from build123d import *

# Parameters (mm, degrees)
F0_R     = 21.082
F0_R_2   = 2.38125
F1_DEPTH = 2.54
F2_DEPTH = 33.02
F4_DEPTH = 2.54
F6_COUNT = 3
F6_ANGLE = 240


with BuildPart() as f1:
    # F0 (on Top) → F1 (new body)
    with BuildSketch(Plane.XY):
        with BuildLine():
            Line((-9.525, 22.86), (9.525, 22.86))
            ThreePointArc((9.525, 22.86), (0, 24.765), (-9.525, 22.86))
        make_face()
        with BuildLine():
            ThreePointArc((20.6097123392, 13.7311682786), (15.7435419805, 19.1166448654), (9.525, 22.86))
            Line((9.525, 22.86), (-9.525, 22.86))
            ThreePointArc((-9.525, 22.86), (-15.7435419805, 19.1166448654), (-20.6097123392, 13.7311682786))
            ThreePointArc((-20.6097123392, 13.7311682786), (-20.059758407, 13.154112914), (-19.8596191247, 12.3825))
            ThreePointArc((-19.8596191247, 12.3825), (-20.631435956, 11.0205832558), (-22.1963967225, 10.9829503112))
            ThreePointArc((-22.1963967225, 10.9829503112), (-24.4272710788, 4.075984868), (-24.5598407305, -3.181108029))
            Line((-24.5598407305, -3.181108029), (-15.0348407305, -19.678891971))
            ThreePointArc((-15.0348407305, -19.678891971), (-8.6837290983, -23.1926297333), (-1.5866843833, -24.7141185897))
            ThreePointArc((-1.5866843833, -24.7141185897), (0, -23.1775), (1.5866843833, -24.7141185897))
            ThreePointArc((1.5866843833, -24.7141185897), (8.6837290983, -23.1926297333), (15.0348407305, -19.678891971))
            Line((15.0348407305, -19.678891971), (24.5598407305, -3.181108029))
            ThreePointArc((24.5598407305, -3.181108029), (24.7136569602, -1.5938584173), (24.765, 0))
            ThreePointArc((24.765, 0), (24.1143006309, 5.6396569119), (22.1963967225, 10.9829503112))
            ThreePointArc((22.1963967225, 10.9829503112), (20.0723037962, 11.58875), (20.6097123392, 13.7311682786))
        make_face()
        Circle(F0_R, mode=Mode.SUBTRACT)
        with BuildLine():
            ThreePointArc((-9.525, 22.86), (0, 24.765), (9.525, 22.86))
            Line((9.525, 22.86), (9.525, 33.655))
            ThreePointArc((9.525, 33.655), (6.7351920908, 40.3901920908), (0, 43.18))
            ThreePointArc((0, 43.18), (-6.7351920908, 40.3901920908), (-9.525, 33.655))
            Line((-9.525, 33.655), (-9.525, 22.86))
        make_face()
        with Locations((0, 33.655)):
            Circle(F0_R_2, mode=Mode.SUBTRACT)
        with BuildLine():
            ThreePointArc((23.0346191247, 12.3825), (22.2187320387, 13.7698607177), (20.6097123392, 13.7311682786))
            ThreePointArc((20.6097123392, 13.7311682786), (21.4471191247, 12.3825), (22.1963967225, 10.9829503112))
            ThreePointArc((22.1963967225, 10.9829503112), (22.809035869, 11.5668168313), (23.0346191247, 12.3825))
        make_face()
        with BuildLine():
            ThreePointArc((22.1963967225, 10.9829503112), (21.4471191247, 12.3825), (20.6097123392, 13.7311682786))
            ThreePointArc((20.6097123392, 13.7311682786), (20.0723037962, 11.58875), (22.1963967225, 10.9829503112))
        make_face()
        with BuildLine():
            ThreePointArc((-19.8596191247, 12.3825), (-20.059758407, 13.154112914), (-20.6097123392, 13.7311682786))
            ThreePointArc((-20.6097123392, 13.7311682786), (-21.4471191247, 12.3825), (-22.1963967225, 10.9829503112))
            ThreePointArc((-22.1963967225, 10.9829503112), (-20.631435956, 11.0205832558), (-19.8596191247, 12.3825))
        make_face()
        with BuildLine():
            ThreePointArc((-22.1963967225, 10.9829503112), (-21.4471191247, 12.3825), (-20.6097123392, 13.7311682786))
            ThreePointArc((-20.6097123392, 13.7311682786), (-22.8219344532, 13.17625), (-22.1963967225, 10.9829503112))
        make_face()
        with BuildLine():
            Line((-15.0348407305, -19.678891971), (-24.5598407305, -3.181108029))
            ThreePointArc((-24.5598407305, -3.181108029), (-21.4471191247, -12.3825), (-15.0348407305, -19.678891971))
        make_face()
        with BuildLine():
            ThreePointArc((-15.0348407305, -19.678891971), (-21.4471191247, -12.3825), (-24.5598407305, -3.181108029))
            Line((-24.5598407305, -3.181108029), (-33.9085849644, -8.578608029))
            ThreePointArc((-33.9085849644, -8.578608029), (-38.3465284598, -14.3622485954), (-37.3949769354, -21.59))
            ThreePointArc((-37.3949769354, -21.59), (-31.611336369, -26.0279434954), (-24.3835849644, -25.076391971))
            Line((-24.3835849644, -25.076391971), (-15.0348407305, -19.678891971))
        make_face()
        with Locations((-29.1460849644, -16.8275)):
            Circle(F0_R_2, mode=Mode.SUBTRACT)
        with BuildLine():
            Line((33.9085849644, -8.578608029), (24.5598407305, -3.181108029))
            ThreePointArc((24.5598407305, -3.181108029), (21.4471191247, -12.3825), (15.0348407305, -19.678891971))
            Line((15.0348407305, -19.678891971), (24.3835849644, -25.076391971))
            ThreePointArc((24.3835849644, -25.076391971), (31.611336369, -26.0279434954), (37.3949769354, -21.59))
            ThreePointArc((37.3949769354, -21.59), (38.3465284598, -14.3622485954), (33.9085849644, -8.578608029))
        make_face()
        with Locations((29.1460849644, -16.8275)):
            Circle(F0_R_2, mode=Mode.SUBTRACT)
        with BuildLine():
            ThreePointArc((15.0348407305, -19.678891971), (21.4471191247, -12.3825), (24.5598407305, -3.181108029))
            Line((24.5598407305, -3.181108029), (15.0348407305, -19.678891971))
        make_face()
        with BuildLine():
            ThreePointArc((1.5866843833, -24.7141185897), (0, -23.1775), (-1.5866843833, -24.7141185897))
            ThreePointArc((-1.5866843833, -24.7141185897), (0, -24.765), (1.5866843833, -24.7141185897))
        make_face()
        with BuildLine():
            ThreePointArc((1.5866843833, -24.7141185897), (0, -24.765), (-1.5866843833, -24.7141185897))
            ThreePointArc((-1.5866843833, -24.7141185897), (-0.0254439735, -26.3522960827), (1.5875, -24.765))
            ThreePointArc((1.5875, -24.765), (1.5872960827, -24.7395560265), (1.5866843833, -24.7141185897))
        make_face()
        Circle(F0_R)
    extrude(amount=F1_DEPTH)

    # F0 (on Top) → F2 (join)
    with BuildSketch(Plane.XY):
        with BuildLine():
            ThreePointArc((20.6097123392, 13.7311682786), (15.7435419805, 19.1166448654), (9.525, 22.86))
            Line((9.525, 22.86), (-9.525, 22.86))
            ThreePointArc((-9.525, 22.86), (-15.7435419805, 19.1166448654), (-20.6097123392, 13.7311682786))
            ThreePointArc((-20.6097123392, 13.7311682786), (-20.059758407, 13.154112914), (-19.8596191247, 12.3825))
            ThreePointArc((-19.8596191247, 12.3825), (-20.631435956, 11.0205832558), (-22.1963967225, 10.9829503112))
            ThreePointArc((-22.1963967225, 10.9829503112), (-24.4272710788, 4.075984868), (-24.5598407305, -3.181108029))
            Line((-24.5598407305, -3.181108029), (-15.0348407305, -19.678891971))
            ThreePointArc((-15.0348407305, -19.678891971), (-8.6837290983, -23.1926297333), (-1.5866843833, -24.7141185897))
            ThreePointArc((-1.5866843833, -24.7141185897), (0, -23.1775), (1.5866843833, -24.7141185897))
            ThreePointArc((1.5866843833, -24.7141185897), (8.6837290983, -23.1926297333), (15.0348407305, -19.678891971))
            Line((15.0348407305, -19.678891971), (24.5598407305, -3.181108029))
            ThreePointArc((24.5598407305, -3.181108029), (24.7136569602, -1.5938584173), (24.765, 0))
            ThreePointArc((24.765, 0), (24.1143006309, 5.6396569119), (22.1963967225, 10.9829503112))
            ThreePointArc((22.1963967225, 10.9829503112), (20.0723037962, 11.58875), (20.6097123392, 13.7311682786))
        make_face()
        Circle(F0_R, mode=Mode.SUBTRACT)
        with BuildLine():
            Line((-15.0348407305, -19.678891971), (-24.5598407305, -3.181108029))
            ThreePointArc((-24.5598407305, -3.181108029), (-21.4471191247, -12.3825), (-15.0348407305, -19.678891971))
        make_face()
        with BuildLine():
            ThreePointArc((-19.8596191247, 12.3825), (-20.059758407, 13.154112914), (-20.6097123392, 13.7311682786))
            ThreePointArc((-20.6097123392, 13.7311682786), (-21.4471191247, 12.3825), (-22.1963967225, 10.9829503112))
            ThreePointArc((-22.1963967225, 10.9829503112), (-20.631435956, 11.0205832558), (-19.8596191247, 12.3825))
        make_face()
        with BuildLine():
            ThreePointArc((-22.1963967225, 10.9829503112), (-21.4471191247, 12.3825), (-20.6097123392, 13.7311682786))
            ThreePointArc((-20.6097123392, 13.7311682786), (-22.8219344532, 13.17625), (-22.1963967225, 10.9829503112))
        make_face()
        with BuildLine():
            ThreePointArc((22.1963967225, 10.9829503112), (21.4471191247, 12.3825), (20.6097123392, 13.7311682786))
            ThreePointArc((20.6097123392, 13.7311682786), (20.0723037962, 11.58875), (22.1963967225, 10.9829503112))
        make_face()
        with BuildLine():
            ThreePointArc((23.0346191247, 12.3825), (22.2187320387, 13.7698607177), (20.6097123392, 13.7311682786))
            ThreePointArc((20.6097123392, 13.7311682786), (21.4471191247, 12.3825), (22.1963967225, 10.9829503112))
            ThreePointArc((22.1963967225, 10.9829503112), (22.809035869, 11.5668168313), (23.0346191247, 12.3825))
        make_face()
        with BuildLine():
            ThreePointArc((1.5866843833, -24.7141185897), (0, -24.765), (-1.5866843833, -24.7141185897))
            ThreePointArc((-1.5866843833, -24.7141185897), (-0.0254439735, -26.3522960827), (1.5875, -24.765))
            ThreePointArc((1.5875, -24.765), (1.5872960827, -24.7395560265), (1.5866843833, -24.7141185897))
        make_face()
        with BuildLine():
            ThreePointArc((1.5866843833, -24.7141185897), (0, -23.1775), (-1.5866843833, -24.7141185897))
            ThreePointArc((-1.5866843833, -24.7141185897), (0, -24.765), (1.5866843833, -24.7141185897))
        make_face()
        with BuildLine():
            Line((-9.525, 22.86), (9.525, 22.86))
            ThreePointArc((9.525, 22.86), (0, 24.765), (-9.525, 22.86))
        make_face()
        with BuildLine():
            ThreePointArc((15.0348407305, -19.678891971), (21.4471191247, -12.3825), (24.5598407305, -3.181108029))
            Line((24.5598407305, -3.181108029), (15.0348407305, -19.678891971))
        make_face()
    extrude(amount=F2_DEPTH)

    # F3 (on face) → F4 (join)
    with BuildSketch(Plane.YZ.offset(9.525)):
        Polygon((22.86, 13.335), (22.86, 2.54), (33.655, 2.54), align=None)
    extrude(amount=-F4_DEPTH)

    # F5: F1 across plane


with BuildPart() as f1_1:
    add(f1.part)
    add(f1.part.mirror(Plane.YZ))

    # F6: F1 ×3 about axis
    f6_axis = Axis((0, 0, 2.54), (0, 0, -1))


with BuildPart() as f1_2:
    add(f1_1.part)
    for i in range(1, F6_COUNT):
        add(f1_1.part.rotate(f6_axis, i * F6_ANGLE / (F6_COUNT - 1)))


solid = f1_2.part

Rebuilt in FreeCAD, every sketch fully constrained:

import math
import FreeCAD as App
import Part
import Sketcher

V = App.Vector
Q = App.Units.Quantity


def add_polygon(sketch, points):
    """Adds a closed chain of lines whose ends are joined by coincident constraints."""
    first, n = sketch.GeometryCount, len(points)
    for a, b in zip(points, points[1:] + points[:1]):
        sketch.addGeometry(Part.LineSegment(App.Vector(*a, 0), App.Vector(*b, 0)), False)
    for i in range(n):
        sketch.addConstraint(Sketcher.Constraint("Coincident", first + i, 2, first + (i + 1) % n, 1))

doc = App.newDocument("Part")
body = doc.addObject("PartDesign::Body", "Body")

# Sketch on XY plane
sketch1 = body.newObject("Sketcher::SketchObject", "Sketch")
sketch1.AttachmentSupport = (doc.getObject("XY_Plane"), [""])
sketch1.MapMode = "FlatFace"
sketch1.addGeometry([
    Part.ArcOfCircle(Part.Circle(V(0, 0, 0), V(0, 0, 1), 24.765), math.radians(33.673436), math.radians(67.380135)),  # 0
    Part.LineSegment(V(9.525, 22.86, 0), V(9.525, 33.655, 0)),  # 1
    Part.ArcOfCircle(Part.Circle(V(0, 33.655, 0), V(0, 0, 1), 9.525), math.radians(0), math.radians(90)),  # 2
    Part.ArcOfCircle(Part.Circle(V(0, 33.655, 0), V(0, 0, 1), 9.525), math.radians(90), math.radians(180)),  # 3
    Part.LineSegment(V(-9.525, 33.655, 0), V(-9.525, 22.86, 0)),  # 4
    Part.ArcOfCircle(Part.Circle(V(0, 0, 0), V(0, 0, 1), 24.765), math.radians(112.619865), math.radians(146.326564)),  # 5
    Part.ArcOfCircle(Part.Circle(V(-21.447119, 12.3825, 0), V(0, 0, 1), 1.5875), math.radians(58.163282), math.radians(241.836718)),  # 6
    Part.ArcOfCircle(Part.Circle(V(0, 0, 0), V(0, 0, 1), 24.765), math.radians(153.673436), math.radians(187.380135)),  # 7
    Part.LineSegment(V(-24.559841, -3.181108, 0), V(-33.908585, -8.578608, 0)),  # 8
    Part.ArcOfCircle(Part.Circle(V(-29.146085, -16.8275, 0), V(0, 0, 1), 9.525), math.radians(120), math.radians(210)),  # 9
    Part.ArcOfCircle(Part.Circle(V(-29.146085, -16.8275, 0), V(0, 0, 1), 9.525), math.radians(-150), math.radians(-60)),  # 10
    Part.LineSegment(V(-24.383585, -25.076392, 0), V(-15.034841, -19.678892, 0)),  # 11
    Part.ArcOfCircle(Part.Circle(V(0, 0, 0), V(0, 0, 1), 24.765), math.radians(-127.380135), math.radians(-93.673436)),  # 12
    Part.ArcOfCircle(Part.Circle(V(0, -24.765, 0), V(0, 0, 1), 1.5875), math.radians(178.163282), math.radians(360)),  # 13
    Part.ArcOfCircle(Part.Circle(V(0, -24.765, 0), V(0, 0, 1), 1.5875), math.radians(0), math.radians(1.836718)),  # 14
    Part.ArcOfCircle(Part.Circle(V(0, 0, 0), V(0, 0, 1), 24.765), math.radians(-86.326564), math.radians(-52.619865)),  # 15
    Part.LineSegment(V(15.034841, -19.678892, 0), V(24.383585, -25.076392, 0)),  # 16
    Part.ArcOfCircle(Part.Circle(V(29.146085, -16.8275, 0), V(0, 0, 1), 9.525), math.radians(-120), math.radians(-30)),  # 17
    Part.ArcOfCircle(Part.Circle(V(29.146085, -16.8275, 0), V(0, 0, 1), 9.525), math.radians(-30), math.radians(60)),  # 18
    Part.LineSegment(V(33.908585, -8.578608, 0), V(24.559841, -3.181108, 0)),  # 19
    Part.ArcOfCircle(Part.Circle(V(0, 0, 0), V(0, 0, 1), 24.765), math.radians(-7.380135), math.radians(0)),  # 20
    Part.ArcOfCircle(Part.Circle(V(0, 0, 0), V(0, 0, 1), 24.765), math.radians(0), math.radians(26.326564)),  # 21
    Part.ArcOfCircle(Part.Circle(V(21.447119, 12.3825, 0), V(0, 0, 1), 1.5875), math.radians(-61.836718), math.radians(0)),  # 22
    Part.ArcOfCircle(Part.Circle(V(21.447119, 12.3825, 0), V(0, 0, 1), 1.5875), math.radians(0), math.radians(121.836718)),  # 23
    Part.Circle(V(-29.146085, -16.8275, 0), V(0, 0, 1), 2.38125),  # 24
    Part.Circle(V(0, 33.655, 0), V(0, 0, 1), 2.38125),  # 25
    Part.Circle(V(29.146085, -16.8275, 0), V(0, 0, 1), 2.38125),  # 26
], False)
sketch1.addConstraint([
    Sketcher.Constraint("Coincident", 0, 2, 1, 1),
    Sketcher.Constraint("Tangent", 1, 2, 2, 1),
    Sketcher.Constraint("Tangent", 2, 2, 3, 1),
    Sketcher.Constraint("Tangent", 3, 2, 4, 1),
    Sketcher.Constraint("Coincident", 4, 2, 5, 1),
    Sketcher.Constraint("Coincident", 5, 2, 6, 1),
    Sketcher.Constraint("Coincident", 6, 2, 7, 1),
    Sketcher.Constraint("Coincident", 7, 2, 8, 1),
    Sketcher.Constraint("Tangent", 8, 2, 9, 1),
    Sketcher.Constraint("Tangent", 9, 2, 10, 1),
    Sketcher.Constraint("Tangent", 10, 2, 11, 1),
    Sketcher.Constraint("Coincident", 11, 2, 12, 1),
    Sketcher.Constraint("Coincident", 12, 2, 13, 1),
    Sketcher.Constraint("Tangent", 13, 2, 14, 1),
    Sketcher.Constraint("Coincident", 14, 2, 15, 1),
    Sketcher.Constraint("Coincident", 15, 2, 16, 1),
    Sketcher.Constraint("Tangent", 16, 2, 17, 1),
    Sketcher.Constraint("Tangent", 17, 2, 18, 1),
    Sketcher.Constraint("Tangent", 18, 2, 19, 1),
    Sketcher.Constraint("Coincident", 19, 2, 20, 1),
    Sketcher.Constraint("Tangent", 20, 2, 21, 1),
    Sketcher.Constraint("Coincident", 21, 2, 22, 1),
    Sketcher.Constraint("Tangent", 22, 2, 23, 1),
    Sketcher.Constraint("Coincident", 23, 2, 0, 1),
    Sketcher.Constraint("Vertical", 1),
    Sketcher.Constraint("Vertical", 4),
    Sketcher.Constraint("Coincident", 0, 3, -1, 1),
    Sketcher.Constraint("Coincident", 5, 3, -1, 1),
    Sketcher.Constraint("Coincident", 7, 3, -1, 1),
    Sketcher.Constraint("Coincident", 12, 3, -1, 1),
    Sketcher.Constraint("Coincident", 15, 3, -1, 1),
    Sketcher.Constraint("Coincident", 20, 3, -1, 1),
    Sketcher.Constraint("Coincident", 24, 3, 9, 3),
    Sketcher.Constraint("Coincident", 25, 3, 2, 3),
    Sketcher.Constraint("Coincident", 26, 3, 17, 3),
    Sketcher.Constraint("Equal", 2, 3),
    Sketcher.Constraint("Equal", 0, 5),
    Sketcher.Constraint("Equal", 5, 7),
    Sketcher.Constraint("Equal", 3, 9),
    Sketcher.Constraint("Equal", 9, 10),
    Sketcher.Constraint("Equal", 7, 12),
    Sketcher.Constraint("Equal", 6, 13),
    Sketcher.Constraint("Equal", 13, 14),
    Sketcher.Constraint("Equal", 12, 15),
    Sketcher.Constraint("Equal", 10, 17),
    Sketcher.Constraint("Equal", 17, 18),
    Sketcher.Constraint("Equal", 15, 20),
    Sketcher.Constraint("Equal", 20, 21),
    Sketcher.Constraint("Equal", 14, 22),
    Sketcher.Constraint("Equal", 22, 23),
    Sketcher.Constraint("Equal", 24, 25),
    Sketcher.Constraint("Equal", 25, 26),
    Sketcher.Constraint("Symmetric", 9, 3, 17, 3, -2),
    Sketcher.Constraint("Symmetric", 6, 3, 22, 3, -2),
    Sketcher.Constraint("PointOnObject", 2, 3, -2),
    Sketcher.Constraint("PointOnObject", 13, 3, -2),
    Sketcher.Constraint("PointOnObject", 2, 2, -2),
    Sketcher.Constraint("PointOnObject", 20, 2, -1),
    Sketcher.Constraint("Parallel", 8, 11),
    Sketcher.Constraint("Parallel", 16, 19),
    Sketcher.Constraint("Horizontal", 14, 3, 13, 2),
    Sketcher.Constraint("Horizontal", 11, 2, 15, 2),
    Sketcher.Constraint("Horizontal", 9, 2, 17, 2),
    Sketcher.Constraint("Horizontal", 23, 3, 22, 2),
    Sketcher.Constraint("Equal", 8, 11),
    Sketcher.Constraint("Diameter", 24, Q("0.1875 in")),
    Sketcher.Constraint("Angle", 8, Q("-150 deg")),
    Sketcher.Constraint("Radius", 0, Q("0.975 in")),
    Sketcher.Constraint("Radius", 2, Q("0.375 in")),
    Sketcher.Constraint("Radius", 6, Q("0.0625 in")),
    Sketcher.Constraint("DistanceY", -1, 1, 2, 2, Q("1.7 in")),
    Sketcher.Constraint("DistanceY", 9, 2, -1, 1, Q("0.85 in")),
    Sketcher.Constraint("DistanceY", 9, 3, 6, 3, Q("1.15 in")),
    Sketcher.Constraint("Distance", 8, Q("0.425 in")),
    Sketcher.Constraint("DistanceY", 13, 3, -1, 1, Q("0.975 in")),
    Sketcher.Constraint("DistanceX", 6, 3, -1, 1, 21.447119),
])
pad1 = body.newObject("PartDesign::Pad", "Pad")
pad1.Profile = sketch1
pad1.Length = Q("0.1 in")

# Sketch on XY plane
sketch2 = body.newObject("Sketcher::SketchObject", "Sketch001")
sketch2.AttachmentSupport = (doc.getObject("XY_Plane"), [""])
sketch2.MapMode = "FlatFace"
sketch2.addGeometry([
    Part.ArcOfCircle(Part.Circle(V(0, 0, 0), V(0, 0, 1), 24.765), math.radians(33.673436), math.radians(67.380135)),  # 0
    Part.ArcOfCircle(Part.Circle(V(0, 0, 0), V(0, 0, 1), 24.765), math.radians(67.380135), math.radians(112.619865)),  # 1
    Part.ArcOfCircle(Part.Circle(V(0, 0, 0), V(0, 0, 1), 24.765), math.radians(112.619865), math.radians(146.326564)),  # 2
    Part.ArcOfCircle(Part.Circle(V(-21.447119, 12.3825, 0), V(0, 0, 1), 1.5875), math.radians(58.163282), math.radians(241.836718)),  # 3
    Part.ArcOfCircle(Part.Circle(V(0, 0, 0), V(0, 0, 1), 24.765), math.radians(153.673436), math.radians(187.380135)),  # 4
    Part.ArcOfCircle(Part.Circle(V(0, 0, 0), V(0, 0, 1), 24.765), math.radians(-172.619865), math.radians(-127.380135)),  # 5
    Part.ArcOfCircle(Part.Circle(V(0, 0, 0), V(0, 0, 1), 24.765), math.radians(-127.380135), math.radians(-93.673436)),  # 6
    Part.ArcOfCircle(Part.Circle(V(0, -24.765, 0), V(0, 0, 1), 1.5875), math.radians(178.163282), math.radians(360)),  # 7
    Part.ArcOfCircle(Part.Circle(V(0, -24.765, 0), V(0, 0, 1), 1.5875), math.radians(0), math.radians(1.836718)),  # 8
    Part.ArcOfCircle(Part.Circle(V(0, 0, 0), V(0, 0, 1), 24.765), math.radians(-86.326564), math.radians(-52.619865)),  # 9
    Part.ArcOfCircle(Part.Circle(V(0, 0, 0), V(0, 0, 1), 24.765), math.radians(-52.619865), math.radians(-7.380135)),  # 10
    Part.ArcOfCircle(Part.Circle(V(0, 0, 0), V(0, 0, 1), 24.765), math.radians(-7.380135), math.radians(0)),  # 11
    Part.ArcOfCircle(Part.Circle(V(0, 0, 0), V(0, 0, 1), 24.765), math.radians(0), math.radians(26.326564)),  # 12
    Part.ArcOfCircle(Part.Circle(V(21.447119, 12.3825, 0), V(0, 0, 1), 1.5875), math.radians(-61.836718), math.radians(0)),  # 13
    Part.ArcOfCircle(Part.Circle(V(21.447119, 12.3825, 0), V(0, 0, 1), 1.5875), math.radians(0), math.radians(121.836718)),  # 14
    Part.Circle(V(0, 0, 0), V(0, 0, 1), 21.082),  # 15
], False)
sketch2.addConstraint([
    Sketcher.Constraint("Tangent", 0, 2, 1, 1),
    Sketcher.Constraint("Tangent", 1, 2, 2, 1),
    Sketcher.Constraint("Coincident", 2, 2, 3, 1),
    Sketcher.Constraint("Coincident", 3, 2, 4, 1),
    Sketcher.Constraint("Tangent", 4, 2, 5, 1),
    Sketcher.Constraint("Tangent", 5, 2, 6, 1),
    Sketcher.Constraint("Coincident", 6, 2, 7, 1),
    Sketcher.Constraint("Tangent", 7, 2, 8, 1),
    Sketcher.Constraint("Coincident", 8, 2, 9, 1),
    Sketcher.Constraint("Tangent", 9, 2, 10, 1),
    Sketcher.Constraint("Tangent", 10, 2, 11, 1),
    Sketcher.Constraint("Tangent", 11, 2, 12, 1),
    Sketcher.Constraint("Coincident", 12, 2, 13, 1),
    Sketcher.Constraint("Tangent", 13, 2, 14, 1),
    Sketcher.Constraint("Coincident", 14, 2, 0, 1),
    Sketcher.Constraint("Coincident", 0, 3, -1, 1),
    Sketcher.Constraint("Coincident", 2, 3, -1, 1),
    Sketcher.Constraint("Coincident", 4, 3, -1, 1),
    Sketcher.Constraint("Coincident", 6, 3, -1, 1),
    Sketcher.Constraint("Coincident", 9, 3, -1, 1),
    Sketcher.Constraint("Coincident", 11, 3, -1, 1),
    Sketcher.Constraint("Coincident", 15, 3, -1, 1),
    Sketcher.Constraint("Equal", 2, 4),
    Sketcher.Constraint("Equal", 3, 7),
    Sketcher.Constraint("Equal", 7, 8),
    Sketcher.Constraint("Equal", 6, 9),
    Sketcher.Constraint("Equal", 11, 12),
    Sketcher.Constraint("Equal", 8, 13),
    Sketcher.Constraint("Equal", 13, 14),
    Sketcher.Constraint("Symmetric", 3, 3, 13, 3, -2),
    Sketcher.Constraint("PointOnObject", 7, 3, -2),
    Sketcher.Constraint("PointOnObject", 11, 2, -1),
    Sketcher.Constraint("Horizontal", 0, 2, 1, 2),
    Sketcher.Constraint("Horizontal", 8, 3, 7, 2),
    Sketcher.Constraint("Horizontal", 5, 2, 9, 2),
    Sketcher.Constraint("Horizontal", 4, 2, 10, 2),
    Sketcher.Constraint("Horizontal", 14, 3, 13, 2),
    Sketcher.Constraint("Diameter", 15, Q("1.66 in")),
    Sketcher.Constraint("Radius", 0, Q("0.975 in")),
    Sketcher.Constraint("Radius", 3, Q("0.0625 in")),
    Sketcher.Constraint("DistanceY", -1, 1, 0, 2, Q("0.9 in")),
    Sketcher.Constraint("DistanceY", 7, 3, -1, 1, Q("0.975 in")),
    Sketcher.Constraint("DistanceX", 4, 2, 5, 2, Q("0.375 in")),
    Sketcher.Constraint("DistanceY", -1, 1, 3, 3, Q("0.4875 in")),
    Sketcher.Constraint("DistanceX", 3, 3, -1, 1, 21.447119),
    Sketcher.Constraint("DistanceX", 4, 2, -1, 1, 24.559841),
])
pad2 = body.newObject("PartDesign::Pad", "Pad001")
pad2.Profile = sketch2
pad2.Length = Q("1.3 in")

# Sketch on YZ plane
sketch3 = body.newObject("Sketcher::SketchObject", "Sketch002")
sketch3.AttachmentSupport = (doc.getObject("YZ_Plane"), [""])
sketch3.MapMode = "FlatFace"
sketch3.AttachmentOffset = App.Placement(V(0, 0, 0.375 * 25.4), App.Rotation())
add_polygon(sketch3, [(22.86, 13.335), (22.86, 2.54), (33.655, 2.54)])  # lines 0-2
sketch3.addConstraint([
    Sketcher.Constraint("Vertical", 0),
    Sketcher.Constraint("Horizontal", 1),
    Sketcher.Constraint("Equal", 1, 0),
    Sketcher.Constraint("DistanceX", -1, 1, 0, 2, Q("0.9 in")),
    Sketcher.Constraint("DistanceY", -1, 1, 0, 2, Q("0.1 in")),
    Sketcher.Constraint("DistanceX", 1, 1, 1, 2, Q("0.425 in")),
])
pad3 = body.newObject("PartDesign::Pad", "Pad002")
pad3.Profile = sketch3
pad3.Length = Q("0.1 in")
pad3.Reversed = True
body2 = doc.addObject("PartDesign::Body", "Body001")
doc.recompute()

body2.BaseFeature = body
doc.recompute()

mirroring = doc.addObject("Part::Mirroring", "Mirroring")
mirroring.Source = body
mirroring.Base = V(0, 0, 0)
mirroring.Normal = V(1, 0, 0)
body3 = doc.addObject("PartDesign::Body", "Body002")
body3.BaseFeature = mirroring
boolean = body2.newObject("PartDesign::Boolean", "Boolean")
boolean.Type = "Fuse"
boolean.addObjects([body3])
doc.recompute()
body4 = doc.addObject("PartDesign::Body", "Body003")
doc.recompute()

body4.BaseFeature = body2
doc.recompute()

body5 = doc.addObject("PartDesign::Body", "Body004")
body5.BaseFeature = body2
body5.Placement = App.Placement(V(0, 0, 0), App.Rotation(V(0, 0, -1), 120))
boolean2 = body4.newObject("PartDesign::Boolean", "Boolean001")
boolean2.Type = "Fuse"
boolean2.addObjects([body5])
doc.recompute()

body2.Placement = App.Placement(V(0, 0, 0), App.Rotation(V(0, 0, -1), 240))
boolean3 = body4.newObject("PartDesign::Boolean", "Boolean002")
boolean3.Type = "Fuse"
boolean3.addObjects([body2])
mirroring.Visibility = False

doc.recompute()
